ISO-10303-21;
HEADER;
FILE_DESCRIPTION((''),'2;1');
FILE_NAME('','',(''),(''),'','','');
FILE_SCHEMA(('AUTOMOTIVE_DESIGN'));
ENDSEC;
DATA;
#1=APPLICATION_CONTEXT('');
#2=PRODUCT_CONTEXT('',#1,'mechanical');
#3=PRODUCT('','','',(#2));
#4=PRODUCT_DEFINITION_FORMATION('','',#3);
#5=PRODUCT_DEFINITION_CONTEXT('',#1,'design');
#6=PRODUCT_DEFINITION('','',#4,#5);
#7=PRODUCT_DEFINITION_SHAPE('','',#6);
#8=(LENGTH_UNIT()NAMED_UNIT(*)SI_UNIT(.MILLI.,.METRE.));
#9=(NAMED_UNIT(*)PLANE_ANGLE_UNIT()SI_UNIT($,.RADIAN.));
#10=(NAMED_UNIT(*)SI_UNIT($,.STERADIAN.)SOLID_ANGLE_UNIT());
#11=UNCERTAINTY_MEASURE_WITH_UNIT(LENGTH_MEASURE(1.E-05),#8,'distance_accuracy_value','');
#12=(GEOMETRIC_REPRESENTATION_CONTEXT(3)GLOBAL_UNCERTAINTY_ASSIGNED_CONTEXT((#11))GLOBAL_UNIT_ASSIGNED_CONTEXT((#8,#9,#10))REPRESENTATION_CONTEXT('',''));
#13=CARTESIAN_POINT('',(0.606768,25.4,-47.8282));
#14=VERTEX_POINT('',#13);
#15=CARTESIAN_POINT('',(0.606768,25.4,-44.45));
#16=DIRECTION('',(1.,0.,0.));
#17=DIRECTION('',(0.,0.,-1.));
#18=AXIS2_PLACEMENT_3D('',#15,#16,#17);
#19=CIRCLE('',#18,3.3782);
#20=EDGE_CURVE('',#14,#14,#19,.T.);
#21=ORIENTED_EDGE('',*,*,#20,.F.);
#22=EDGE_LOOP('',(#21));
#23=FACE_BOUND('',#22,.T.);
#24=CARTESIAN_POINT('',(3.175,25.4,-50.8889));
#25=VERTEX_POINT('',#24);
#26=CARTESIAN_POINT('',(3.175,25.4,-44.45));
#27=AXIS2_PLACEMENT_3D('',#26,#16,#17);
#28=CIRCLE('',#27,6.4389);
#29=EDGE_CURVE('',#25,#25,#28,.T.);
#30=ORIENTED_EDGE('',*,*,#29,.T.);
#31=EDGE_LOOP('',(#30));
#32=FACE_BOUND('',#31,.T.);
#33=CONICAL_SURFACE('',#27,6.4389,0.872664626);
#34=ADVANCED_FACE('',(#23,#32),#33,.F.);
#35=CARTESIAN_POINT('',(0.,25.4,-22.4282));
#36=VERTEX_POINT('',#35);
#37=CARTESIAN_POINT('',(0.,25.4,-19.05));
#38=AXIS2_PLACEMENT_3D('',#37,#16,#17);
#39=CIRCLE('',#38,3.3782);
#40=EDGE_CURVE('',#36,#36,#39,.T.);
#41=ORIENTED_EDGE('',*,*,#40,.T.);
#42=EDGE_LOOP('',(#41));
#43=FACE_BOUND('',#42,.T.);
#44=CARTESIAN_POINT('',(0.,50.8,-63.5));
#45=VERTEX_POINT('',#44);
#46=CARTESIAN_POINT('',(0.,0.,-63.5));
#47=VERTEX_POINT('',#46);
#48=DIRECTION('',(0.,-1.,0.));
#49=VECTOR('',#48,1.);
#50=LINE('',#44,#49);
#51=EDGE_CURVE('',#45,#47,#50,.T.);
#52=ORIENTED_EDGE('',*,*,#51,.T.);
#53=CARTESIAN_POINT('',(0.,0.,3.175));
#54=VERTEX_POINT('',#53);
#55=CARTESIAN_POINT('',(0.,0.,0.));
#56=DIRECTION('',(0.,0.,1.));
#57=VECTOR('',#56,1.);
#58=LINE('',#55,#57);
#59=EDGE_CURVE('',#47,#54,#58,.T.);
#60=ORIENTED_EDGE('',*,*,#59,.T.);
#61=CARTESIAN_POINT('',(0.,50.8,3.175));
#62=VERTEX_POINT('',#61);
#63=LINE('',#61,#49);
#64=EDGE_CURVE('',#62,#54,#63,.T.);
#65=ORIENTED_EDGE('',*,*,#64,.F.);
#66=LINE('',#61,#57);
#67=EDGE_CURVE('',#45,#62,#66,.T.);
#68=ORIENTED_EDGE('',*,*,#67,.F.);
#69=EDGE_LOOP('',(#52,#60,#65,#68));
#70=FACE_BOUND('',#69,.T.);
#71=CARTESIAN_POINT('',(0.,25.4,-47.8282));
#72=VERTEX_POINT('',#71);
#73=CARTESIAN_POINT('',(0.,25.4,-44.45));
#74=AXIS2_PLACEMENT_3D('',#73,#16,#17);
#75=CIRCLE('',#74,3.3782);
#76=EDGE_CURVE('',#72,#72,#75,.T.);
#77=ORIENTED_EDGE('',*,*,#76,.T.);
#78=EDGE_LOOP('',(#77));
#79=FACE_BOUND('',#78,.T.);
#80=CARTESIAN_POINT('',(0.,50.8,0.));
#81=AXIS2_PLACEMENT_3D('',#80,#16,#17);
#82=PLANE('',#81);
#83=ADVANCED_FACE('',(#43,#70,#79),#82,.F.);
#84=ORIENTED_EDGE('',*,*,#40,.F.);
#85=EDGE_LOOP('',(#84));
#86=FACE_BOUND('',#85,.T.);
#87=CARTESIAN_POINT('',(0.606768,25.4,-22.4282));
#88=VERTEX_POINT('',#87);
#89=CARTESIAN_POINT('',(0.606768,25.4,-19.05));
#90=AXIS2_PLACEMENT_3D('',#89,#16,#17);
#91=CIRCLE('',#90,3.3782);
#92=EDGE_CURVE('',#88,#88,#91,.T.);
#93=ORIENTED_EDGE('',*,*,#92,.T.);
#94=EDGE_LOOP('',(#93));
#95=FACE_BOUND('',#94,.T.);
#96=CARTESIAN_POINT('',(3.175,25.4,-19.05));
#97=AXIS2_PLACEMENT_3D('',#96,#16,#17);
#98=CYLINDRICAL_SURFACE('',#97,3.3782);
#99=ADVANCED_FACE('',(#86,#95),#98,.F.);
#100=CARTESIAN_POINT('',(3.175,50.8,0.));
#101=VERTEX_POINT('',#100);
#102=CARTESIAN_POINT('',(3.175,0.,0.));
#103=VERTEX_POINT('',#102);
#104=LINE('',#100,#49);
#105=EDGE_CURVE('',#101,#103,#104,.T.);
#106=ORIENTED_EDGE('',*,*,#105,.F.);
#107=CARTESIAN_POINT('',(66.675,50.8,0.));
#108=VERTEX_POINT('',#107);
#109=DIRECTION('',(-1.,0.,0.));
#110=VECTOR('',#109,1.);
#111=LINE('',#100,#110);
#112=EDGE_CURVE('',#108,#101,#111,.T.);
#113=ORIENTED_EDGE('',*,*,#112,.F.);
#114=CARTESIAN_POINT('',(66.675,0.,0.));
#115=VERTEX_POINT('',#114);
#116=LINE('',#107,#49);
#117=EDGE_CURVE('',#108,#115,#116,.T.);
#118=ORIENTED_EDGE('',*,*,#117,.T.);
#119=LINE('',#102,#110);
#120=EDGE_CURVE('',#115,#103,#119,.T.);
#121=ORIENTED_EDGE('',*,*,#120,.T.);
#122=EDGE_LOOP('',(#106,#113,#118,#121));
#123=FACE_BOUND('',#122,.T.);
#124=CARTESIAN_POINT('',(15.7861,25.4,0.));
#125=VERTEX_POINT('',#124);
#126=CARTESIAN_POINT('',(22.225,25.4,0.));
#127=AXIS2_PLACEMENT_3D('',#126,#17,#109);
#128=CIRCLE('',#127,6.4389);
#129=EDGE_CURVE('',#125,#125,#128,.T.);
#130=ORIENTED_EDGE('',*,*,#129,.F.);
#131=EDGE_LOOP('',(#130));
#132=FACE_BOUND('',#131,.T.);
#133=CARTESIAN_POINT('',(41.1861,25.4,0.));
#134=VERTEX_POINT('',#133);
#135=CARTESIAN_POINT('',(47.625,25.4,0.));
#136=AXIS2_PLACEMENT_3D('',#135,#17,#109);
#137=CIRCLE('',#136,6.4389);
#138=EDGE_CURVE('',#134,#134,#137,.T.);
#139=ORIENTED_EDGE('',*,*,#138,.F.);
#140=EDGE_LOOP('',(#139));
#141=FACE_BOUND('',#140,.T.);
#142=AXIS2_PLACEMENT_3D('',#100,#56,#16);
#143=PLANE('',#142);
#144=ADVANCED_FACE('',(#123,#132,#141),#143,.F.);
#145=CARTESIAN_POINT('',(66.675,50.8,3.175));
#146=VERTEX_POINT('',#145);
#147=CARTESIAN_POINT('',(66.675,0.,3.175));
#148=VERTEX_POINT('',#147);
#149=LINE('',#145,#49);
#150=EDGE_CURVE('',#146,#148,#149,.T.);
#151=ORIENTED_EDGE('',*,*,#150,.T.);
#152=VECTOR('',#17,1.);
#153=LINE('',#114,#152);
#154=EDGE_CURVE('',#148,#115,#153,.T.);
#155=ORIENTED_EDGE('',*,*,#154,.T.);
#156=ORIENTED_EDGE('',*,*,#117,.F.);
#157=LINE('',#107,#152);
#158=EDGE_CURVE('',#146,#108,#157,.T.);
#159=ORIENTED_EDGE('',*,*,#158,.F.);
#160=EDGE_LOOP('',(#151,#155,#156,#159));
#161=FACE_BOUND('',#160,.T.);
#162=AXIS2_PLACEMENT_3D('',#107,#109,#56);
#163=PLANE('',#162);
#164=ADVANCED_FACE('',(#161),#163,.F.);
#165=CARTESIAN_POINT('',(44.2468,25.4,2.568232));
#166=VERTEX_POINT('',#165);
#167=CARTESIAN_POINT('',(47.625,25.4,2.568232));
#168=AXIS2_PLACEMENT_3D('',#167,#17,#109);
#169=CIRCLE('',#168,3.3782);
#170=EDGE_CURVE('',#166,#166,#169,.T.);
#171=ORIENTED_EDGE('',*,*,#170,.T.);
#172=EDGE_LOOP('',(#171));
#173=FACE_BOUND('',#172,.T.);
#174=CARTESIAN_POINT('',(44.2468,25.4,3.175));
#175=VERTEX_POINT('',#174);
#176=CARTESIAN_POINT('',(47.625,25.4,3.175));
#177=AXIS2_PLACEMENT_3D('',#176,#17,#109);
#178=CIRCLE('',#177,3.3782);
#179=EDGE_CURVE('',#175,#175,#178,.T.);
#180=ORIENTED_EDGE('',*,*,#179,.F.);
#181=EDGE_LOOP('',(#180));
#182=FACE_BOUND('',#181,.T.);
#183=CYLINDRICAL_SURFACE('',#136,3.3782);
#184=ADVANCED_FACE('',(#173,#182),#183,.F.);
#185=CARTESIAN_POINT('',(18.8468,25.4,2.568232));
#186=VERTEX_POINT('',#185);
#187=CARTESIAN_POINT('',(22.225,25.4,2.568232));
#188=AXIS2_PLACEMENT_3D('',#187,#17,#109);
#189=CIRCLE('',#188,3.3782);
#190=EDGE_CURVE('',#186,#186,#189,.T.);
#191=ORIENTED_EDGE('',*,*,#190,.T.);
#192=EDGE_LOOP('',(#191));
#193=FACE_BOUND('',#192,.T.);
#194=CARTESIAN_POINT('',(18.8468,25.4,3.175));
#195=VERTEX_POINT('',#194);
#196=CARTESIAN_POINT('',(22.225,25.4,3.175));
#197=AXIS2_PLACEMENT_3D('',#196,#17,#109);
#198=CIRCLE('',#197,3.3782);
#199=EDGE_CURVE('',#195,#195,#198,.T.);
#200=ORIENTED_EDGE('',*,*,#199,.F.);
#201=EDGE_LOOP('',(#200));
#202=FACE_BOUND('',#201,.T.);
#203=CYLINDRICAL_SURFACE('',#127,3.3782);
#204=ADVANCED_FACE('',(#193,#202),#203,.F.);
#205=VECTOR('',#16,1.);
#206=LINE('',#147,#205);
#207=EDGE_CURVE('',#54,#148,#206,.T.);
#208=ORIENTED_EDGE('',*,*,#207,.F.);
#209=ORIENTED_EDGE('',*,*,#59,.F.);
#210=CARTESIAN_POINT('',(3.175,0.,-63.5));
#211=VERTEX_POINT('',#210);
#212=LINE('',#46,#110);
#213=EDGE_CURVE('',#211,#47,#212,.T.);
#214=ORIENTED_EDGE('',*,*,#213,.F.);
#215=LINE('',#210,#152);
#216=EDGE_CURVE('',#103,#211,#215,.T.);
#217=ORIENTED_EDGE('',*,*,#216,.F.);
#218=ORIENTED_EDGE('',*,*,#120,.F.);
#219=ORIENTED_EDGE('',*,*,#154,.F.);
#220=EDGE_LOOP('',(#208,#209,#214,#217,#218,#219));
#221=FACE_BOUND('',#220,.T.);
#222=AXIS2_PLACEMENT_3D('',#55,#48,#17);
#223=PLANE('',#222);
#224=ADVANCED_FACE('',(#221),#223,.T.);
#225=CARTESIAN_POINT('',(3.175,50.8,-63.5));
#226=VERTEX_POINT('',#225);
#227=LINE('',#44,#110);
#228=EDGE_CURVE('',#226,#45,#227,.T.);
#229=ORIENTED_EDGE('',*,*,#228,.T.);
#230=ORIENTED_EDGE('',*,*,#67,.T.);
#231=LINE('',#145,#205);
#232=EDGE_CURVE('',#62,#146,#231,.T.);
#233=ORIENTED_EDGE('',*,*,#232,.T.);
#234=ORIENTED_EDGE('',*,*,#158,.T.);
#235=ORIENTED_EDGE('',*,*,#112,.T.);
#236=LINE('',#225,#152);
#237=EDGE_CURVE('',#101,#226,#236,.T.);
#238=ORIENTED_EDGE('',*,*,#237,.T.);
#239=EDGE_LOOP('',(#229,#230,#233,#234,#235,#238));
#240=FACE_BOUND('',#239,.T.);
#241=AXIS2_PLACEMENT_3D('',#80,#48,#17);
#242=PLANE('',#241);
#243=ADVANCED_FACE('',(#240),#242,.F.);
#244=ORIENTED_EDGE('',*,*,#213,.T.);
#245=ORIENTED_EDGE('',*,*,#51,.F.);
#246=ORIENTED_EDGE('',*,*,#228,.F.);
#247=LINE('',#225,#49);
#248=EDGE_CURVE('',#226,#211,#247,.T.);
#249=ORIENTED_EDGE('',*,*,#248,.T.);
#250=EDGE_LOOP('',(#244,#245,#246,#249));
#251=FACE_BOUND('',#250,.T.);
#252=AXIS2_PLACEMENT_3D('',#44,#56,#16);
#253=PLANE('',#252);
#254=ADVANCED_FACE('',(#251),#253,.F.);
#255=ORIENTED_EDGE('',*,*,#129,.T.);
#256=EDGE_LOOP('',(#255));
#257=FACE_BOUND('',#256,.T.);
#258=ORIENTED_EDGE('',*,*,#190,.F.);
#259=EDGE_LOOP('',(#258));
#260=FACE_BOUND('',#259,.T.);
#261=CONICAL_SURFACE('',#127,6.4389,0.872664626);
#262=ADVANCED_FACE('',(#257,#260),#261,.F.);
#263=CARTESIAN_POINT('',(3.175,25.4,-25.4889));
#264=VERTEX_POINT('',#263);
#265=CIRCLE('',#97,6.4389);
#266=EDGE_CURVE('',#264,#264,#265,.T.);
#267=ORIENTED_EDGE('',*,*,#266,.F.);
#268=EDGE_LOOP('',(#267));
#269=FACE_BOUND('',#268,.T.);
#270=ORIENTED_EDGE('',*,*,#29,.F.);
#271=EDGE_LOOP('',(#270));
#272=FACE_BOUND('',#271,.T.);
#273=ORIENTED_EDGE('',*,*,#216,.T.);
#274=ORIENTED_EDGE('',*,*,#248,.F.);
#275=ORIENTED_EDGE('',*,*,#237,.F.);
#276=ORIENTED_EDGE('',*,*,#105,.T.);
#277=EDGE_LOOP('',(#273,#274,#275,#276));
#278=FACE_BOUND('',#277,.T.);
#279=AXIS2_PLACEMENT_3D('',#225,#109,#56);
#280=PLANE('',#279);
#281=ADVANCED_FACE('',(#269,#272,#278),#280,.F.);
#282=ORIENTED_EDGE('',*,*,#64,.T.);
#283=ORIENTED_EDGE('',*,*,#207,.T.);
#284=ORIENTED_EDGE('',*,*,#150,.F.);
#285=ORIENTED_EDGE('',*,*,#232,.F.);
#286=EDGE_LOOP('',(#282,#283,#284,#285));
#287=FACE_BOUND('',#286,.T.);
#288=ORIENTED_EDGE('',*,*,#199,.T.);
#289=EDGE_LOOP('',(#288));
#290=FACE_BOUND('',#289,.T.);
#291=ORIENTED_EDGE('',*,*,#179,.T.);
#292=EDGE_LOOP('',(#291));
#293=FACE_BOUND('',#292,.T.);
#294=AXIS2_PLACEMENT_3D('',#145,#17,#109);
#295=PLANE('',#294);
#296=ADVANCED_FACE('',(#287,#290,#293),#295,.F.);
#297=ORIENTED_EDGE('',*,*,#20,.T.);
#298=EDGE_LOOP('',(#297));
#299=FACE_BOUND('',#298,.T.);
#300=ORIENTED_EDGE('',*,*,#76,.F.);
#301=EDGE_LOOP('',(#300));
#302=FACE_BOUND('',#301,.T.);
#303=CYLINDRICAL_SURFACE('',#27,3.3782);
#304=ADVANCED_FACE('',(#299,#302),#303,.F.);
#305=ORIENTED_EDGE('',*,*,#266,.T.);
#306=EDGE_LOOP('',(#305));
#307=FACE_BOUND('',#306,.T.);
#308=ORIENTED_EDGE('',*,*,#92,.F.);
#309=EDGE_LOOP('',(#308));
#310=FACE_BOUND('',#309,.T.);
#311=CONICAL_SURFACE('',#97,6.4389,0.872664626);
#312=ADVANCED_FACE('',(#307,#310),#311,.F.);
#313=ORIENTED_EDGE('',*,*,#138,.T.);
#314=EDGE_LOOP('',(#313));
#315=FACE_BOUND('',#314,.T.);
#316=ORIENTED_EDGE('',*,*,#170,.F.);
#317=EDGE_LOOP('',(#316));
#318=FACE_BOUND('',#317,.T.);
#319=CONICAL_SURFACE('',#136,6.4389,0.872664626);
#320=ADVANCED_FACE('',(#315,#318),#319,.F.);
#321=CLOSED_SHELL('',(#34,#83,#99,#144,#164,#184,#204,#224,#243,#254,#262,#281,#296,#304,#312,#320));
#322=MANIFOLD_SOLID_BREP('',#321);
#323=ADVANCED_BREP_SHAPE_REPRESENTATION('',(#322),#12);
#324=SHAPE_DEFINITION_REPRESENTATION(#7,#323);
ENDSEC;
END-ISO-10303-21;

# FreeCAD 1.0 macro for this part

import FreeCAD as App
import Part
import Sketcher
from FreeCAD import Vector
Q = App.Units.Quantity

doc = App.newDocument("Part")
body = doc.addObject("PartDesign::Body", "Body")

sketch1 = doc.addObject("Sketcher::SketchObject", "Sketch")
body.addObject(sketch1)
sketch1.AttachmentSupport = (doc.XZ_Plane, [""])
sketch1.MapMode = "FlatFace"
sketch1.addGeometry([
    Part.LineSegment(Vector(0, -63.5, 0), Vector(0, 3.2, 0)),
    Part.LineSegment(Vector(0, 3.2, 0), Vector(66.7, 3.2, 0)),
    Part.LineSegment(Vector(66.7, 3.2, 0), Vector(66.7, 0, 0)),
    Part.LineSegment(Vector(66.7, 0, 0), Vector(3.2, 0, 0)),
    Part.LineSegment(Vector(3.2, 0, 0), Vector(3.2, -63.5, 0)),
    Part.LineSegment(Vector(3.2, -63.5, 0), Vector(0, -63.5, 0)),
], False)
sketch1.addConstraint([
    Sketcher.Constraint("Coincident", 0, 2, 1, 1),
    Sketcher.Constraint("Coincident", 1, 2, 2, 1),
    Sketcher.Constraint("Coincident", 2, 2, 3, 1),
    Sketcher.Constraint("Coincident", 3, 2, 4, 1),
    Sketcher.Constraint("Coincident", 4, 2, 5, 1),
    Sketcher.Constraint("Coincident", 5, 2, 0, 1),
    Sketcher.Constraint("Vertical", 0),
    Sketcher.Constraint("Horizontal", 1),
    Sketcher.Constraint("Vertical", 2),
    Sketcher.Constraint("Horizontal", 3),
    Sketcher.Constraint("Vertical", 4),
    Sketcher.Constraint("Horizontal", 5),
    Sketcher.Constraint("PointOnObject", 0, 2, -2),
    Sketcher.Constraint("PointOnObject", 2, 2, -1),
    Sketcher.Constraint("Equal", 1, 0),
    Sketcher.Constraint("Equal", 5, 2),
    Sketcher.Constraint("DistanceX", 3, 2, 3, 1, Q("2.5 in")),
    Sketcher.Constraint("DistanceX", 1, 1, 1, 2, Q("2.625 in")),
])
pad1 = doc.addObject("PartDesign::Pad", "Pad")
body.addObject(pad1)
pad1.Profile = sketch1
pad1.Length = Q("2 in")
pad1.Reversed = True

sketch2 = doc.addObject("Sketcher::SketchObject", "Sketch001")
body.addObject(sketch2)
sketch2.AttachmentSupport = (doc.XZ_Plane, [""])
sketch2.MapMode = "FlatFace"
sketch2.AttachmentOffset = App.Placement(Vector(0, 0, -1 * 25.4), App.Rotation())
sketch2.addGeometry([
    Part.LineSegment(Vector(0, -19.1, 0), Vector(3.2, -19.1, 0)),
    Part.LineSegment(Vector(3.2, -19.1, 0), Vector(3.2, -25.5, 0)),
    Part.LineSegment(Vector(3.2, -25.5, 0), Vector(0.6, -22.4, 0)),
    Part.LineSegment(Vector(0.6, -22.4, 0), Vector(0, -22.4, 0)),
    Part.LineSegment(Vector(0, -22.4, 0), Vector(0, -19.1, 0)),
], False)
sketch2.addGeometry(Part.LineSegment(Vector(3.2, -19.1, 0), Vector(0, -19.1, 0)), True)
sketch2.addConstraint([
    Sketcher.Constraint("Coincident", 0, 2, 1, 1),
    Sketcher.Constraint("Coincident", 1, 2, 2, 1),
    Sketcher.Constraint("Coincident", 2, 2, 3, 1),
    Sketcher.Constraint("Coincident", 3, 2, 4, 1),
    Sketcher.Constraint("Coincident", 4, 2, 0, 1),
    Sketcher.Constraint("Horizontal", 0),
    Sketcher.Constraint("Vertical", 1),
    Sketcher.Constraint("Horizontal", 3),
    Sketcher.Constraint("Vertical", 4),
    Sketcher.Constraint("Horizontal", 5),
    Sketcher.Constraint("Coincident", 5, 1, 0, 2),
    Sketcher.Constraint("PointOnObject", 3, 2, -2),
    Sketcher.Constraint("PointOnObject", 5, 2, -2),
    Sketcher.Constraint("Angle", 2, Q("130 deg")),
    Sketcher.Constraint("DistanceX", 0, 1, 0, 2, Q("0.125 in")),
    Sketcher.Constraint("DistanceY", 4, 1, 4, 2, Q("0.133 in")),
    Sketcher.Constraint("DistanceY", 0, 2, -1, 1, Q("0.75 in")),
    Sketcher.Constraint("DistanceY", 1, 2, 1, 1, Q("0.2535 in")),
])
groove = doc.addObject("PartDesign::Groove", "Groove")
body.addObject(groove)
groove.Profile = sketch2
groove.ReferenceAxis = (sketch2, ["Axis0"])
groove.Angle = 360
doc.recompute()

linearpattern = doc.addObject("PartDesign::LinearPattern", "LinearPattern")
body.addObject(linearpattern)
linearpattern.Originals = [groove]
linearpattern.Direction = (doc.Z_Axis, [""])
linearpattern.Mode = "offset"
linearpattern.Offset = Q("1 in")
linearpattern.Occurrences = 2
linearpattern.Reversed = True
body.Tip = linearpattern

sketch3 = doc.addObject("Sketcher::SketchObject", "Sketch002")
body.addObject(sketch3)
sketch3.AttachmentSupport = (doc.YZ_Plane, [""])
sketch3.MapMode = "FlatFace"
sketch3.AttachmentOffset = App.Placement(Vector(0, 0, 1.875 * 25.4), App.Rotation())
sketch3.addGeometry([
    Part.LineSegment(Vector(25.4, 3.2, 0), Vector(25.4, 0, 0)),
    Part.LineSegment(Vector(25.4, 0, 0), Vector(31.8, 0, 0)),
    Part.LineSegment(Vector(31.8, 0, 0), Vector(28.8, 2.6, 0)),
    Part.LineSegment(Vector(28.8, 2.6, 0), Vector(28.8, 3.2, 0)),
    Part.LineSegment(Vector(28.8, 3.2, 0), Vector(25.4, 3.2, 0)),
], False)
sketch3.addGeometry(Part.LineSegment(Vector(25.4, 0, 0), Vector(25.4, 3.2, 0)), True)
sketch3.addConstraint([
    Sketcher.Constraint("Coincident", 0, 2, 1, 1),
    Sketcher.Constraint("Coincident", 1, 2, 2, 1),
    Sketcher.Constraint("Coincident", 2, 2, 3, 1),
    Sketcher.Constraint("Coincident", 3, 2, 4, 1),
    Sketcher.Constraint("Coincident", 4, 2, 0, 1),
    Sketcher.Constraint("Vertical", 0),
    Sketcher.Constraint("Horizontal", 1),
    Sketcher.Constraint("Vertical", 3),
    Sketcher.Constraint("Horizontal", 4),
    Sketcher.Constraint("Vertical", 5),
    Sketcher.Constraint("Coincident", 5, 1, 0, 2),
    Sketcher.Constraint("PointOnObject", 0, 2, -1),
    Sketcher.Constraint("Horizontal", 3, 2, 5, 2),
    Sketcher.Constraint("DistanceX", -1, 1, 0, 2, Q("1 in")),
    Sketcher.Constraint("Angle", 2, Q("140 deg")),
    Sketcher.Constraint("DistanceX", 4, 2, 4, 1, Q("0.133 in")),
    Sketcher.Constraint("DistanceY", 0, 2, 0, 1, Q("0.125 in")),
    Sketcher.Constraint("DistanceX", 1, 1, 1, 2, Q("0.2535 in")),
])
groove2 = doc.addObject("PartDesign::Groove", "Groove001")
body.addObject(groove2)
groove2.Profile = sketch3
groove2.ReferenceAxis = (sketch3, ["Axis0"])
groove2.Angle = 360
doc.recompute()

linearpattern2 = doc.addObject("PartDesign::LinearPattern", "LinearPattern001")
body.addObject(linearpattern2)
linearpattern2.Originals = [groove2]
linearpattern2.Direction = (doc.X_Axis, [""])
linearpattern2.Mode = "offset"
linearpattern2.Offset = Q("1 in")
linearpattern2.Occurrences = 2
linearpattern2.Reversed = True
body.Tip = linearpattern2

doc.recompute()
